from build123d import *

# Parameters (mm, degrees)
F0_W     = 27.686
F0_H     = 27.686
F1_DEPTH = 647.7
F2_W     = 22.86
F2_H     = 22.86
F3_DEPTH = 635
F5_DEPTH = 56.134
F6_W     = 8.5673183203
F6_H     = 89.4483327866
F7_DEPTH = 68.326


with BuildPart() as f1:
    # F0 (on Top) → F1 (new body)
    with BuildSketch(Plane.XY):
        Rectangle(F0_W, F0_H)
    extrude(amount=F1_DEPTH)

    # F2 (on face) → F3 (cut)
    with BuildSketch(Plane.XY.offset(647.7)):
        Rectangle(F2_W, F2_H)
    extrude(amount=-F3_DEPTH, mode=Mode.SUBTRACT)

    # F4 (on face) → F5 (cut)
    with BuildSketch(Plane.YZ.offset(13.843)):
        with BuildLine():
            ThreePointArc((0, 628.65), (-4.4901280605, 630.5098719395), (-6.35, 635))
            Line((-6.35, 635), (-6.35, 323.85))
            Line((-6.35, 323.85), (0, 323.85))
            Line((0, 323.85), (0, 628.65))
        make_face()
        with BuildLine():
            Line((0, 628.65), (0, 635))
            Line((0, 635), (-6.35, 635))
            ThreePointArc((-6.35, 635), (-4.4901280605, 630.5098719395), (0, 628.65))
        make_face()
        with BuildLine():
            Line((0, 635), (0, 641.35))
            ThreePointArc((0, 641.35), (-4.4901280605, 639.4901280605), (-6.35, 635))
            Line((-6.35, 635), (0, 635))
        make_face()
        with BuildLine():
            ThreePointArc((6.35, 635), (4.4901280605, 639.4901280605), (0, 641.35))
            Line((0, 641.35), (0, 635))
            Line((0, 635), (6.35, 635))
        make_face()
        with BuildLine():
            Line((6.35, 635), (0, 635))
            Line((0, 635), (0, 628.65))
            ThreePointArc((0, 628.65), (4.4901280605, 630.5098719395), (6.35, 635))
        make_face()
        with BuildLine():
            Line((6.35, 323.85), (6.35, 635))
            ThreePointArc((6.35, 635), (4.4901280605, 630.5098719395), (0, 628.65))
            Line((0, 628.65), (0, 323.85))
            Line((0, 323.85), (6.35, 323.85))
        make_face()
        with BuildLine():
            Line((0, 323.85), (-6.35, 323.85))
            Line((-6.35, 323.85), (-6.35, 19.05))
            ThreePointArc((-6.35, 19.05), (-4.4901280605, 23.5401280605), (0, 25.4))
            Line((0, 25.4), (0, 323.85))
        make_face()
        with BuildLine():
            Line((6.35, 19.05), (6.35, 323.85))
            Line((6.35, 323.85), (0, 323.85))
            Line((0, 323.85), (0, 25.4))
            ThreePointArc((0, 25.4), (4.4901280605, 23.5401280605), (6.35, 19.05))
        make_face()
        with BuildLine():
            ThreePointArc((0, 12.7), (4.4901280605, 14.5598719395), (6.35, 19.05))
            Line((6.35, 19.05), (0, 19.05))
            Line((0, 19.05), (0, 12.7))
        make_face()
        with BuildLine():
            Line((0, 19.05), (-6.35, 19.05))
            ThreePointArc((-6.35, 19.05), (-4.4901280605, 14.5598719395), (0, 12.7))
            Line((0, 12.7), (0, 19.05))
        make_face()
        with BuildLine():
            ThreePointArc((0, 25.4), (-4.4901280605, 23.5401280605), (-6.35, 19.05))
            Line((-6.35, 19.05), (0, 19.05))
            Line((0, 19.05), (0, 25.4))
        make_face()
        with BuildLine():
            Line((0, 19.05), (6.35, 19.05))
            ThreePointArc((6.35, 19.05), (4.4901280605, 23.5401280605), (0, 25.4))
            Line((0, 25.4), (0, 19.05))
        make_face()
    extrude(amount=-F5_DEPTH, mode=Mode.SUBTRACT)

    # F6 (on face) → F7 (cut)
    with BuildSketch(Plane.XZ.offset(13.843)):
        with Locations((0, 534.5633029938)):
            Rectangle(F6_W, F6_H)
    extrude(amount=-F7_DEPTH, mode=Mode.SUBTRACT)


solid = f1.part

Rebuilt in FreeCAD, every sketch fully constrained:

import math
import FreeCAD as App
import Part
import Sketcher
Q = App.Units.Quantity

doc = App.newDocument("Part")
body = doc.addObject("PartDesign::Body", "Body")

# Sketch on XY plane
sketch1 = body.newObject("Sketcher::SketchObject", "Sketch")
sketch1.AttachmentSupport = (doc.getObject("XY_Plane"), [""])
sketch1.MapMode = "FlatFace"
sketch1.addGeometry([
    Part.LineSegment(App.Vector(-13.843, 13.843, 0), App.Vector(-13.843, -13.843, 0)),
    Part.LineSegment(App.Vector(-13.843, -13.843, 0), App.Vector(13.843, -13.843, 0)),
    Part.LineSegment(App.Vector(13.843, -13.843, 0), App.Vector(13.843, 13.843, 0)),
    Part.LineSegment(App.Vector(13.843, 13.843, 0), App.Vector(-13.843, 13.843, 0)),
], False)
sketch1.addConstraint([
    Sketcher.Constraint("Coincident", 0, 2, 1, 1),
    Sketcher.Constraint("Coincident", 1, 2, 2, 1),
    Sketcher.Constraint("Coincident", 2, 2, 3, 1),
    Sketcher.Constraint("Coincident", 3, 2, 0, 1),
    Sketcher.Constraint("Vertical", 0),
    Sketcher.Constraint("Horizontal", 1),
    Sketcher.Constraint("Vertical", 2),
    Sketcher.Constraint("Horizontal", 3),
    Sketcher.Constraint("Symmetric", 0, 2, 2, 2, -1, 1),
    Sketcher.Constraint("Equal", 3, 0),
    Sketcher.Constraint("DistanceX", 1, 1, 1, 2, Q("1.09 in")),
])
pad1 = body.newObject("PartDesign::Pad", "Pad")
pad1.Profile = sketch1
pad1.Length = Q("25.5 in")

# Sketch on XY plane
sketch2 = body.newObject("Sketcher::SketchObject", "Sketch001")
sketch2.AttachmentSupport = (doc.getObject("XY_Plane"), [""])
sketch2.MapMode = "FlatFace"
sketch2.AttachmentOffset = App.Placement(App.Vector(0, 0, 25.5 * 25.4), App.Rotation())
sketch2.addGeometry([
    Part.LineSegment(App.Vector(-11.43, 11.43, 0), App.Vector(-11.43, -11.43, 0)),
    Part.LineSegment(App.Vector(-11.43, -11.43, 0), App.Vector(11.43, -11.43, 0)),
    Part.LineSegment(App.Vector(11.43, -11.43, 0), App.Vector(11.43, 11.43, 0)),
    Part.LineSegment(App.Vector(11.43, 11.43, 0), App.Vector(-11.43, 11.43, 0)),
], False)
sketch2.addConstraint([
    Sketcher.Constraint("Coincident", 0, 2, 1, 1),
    Sketcher.Constraint("Coincident", 1, 2, 2, 1),
    Sketcher.Constraint("Coincident", 2, 2, 3, 1),
    Sketcher.Constraint("Coincident", 3, 2, 0, 1),
    Sketcher.Constraint("Vertical", 0),
    Sketcher.Constraint("Horizontal", 1),
    Sketcher.Constraint("Vertical", 2),
    Sketcher.Constraint("Horizontal", 3),
    Sketcher.Constraint("Symmetric", 0, 2, 2, 2, -1, 1),
    Sketcher.Constraint("Equal", 3, 0),
    Sketcher.Constraint("DistanceX", 1, 1, 1, 2, Q("0.9 in")),
])
pocket1 = body.newObject("PartDesign::Pocket", "Pocket")
pocket1.Profile = sketch2
pocket1.Length = Q("25 in")

# Sketch on YZ plane
sketch3 = body.newObject("Sketcher::SketchObject", "Sketch002")
sketch3.AttachmentSupport = (doc.getObject("YZ_Plane"), [""])
sketch3.MapMode = "FlatFace"
sketch3.AttachmentOffset = App.Placement(App.Vector(0, 0, 0.545 * 25.4), App.Rotation())
sketch3.addGeometry([
    Part.ArcOfCircle(Part.Circle(App.Vector(0, 19.05, 0), App.Vector(0, 0, 1), 6.35), math.radians(-90), math.radians(0)),  # 0
    Part.LineSegment(App.Vector(6.35, 19.05, 0), App.Vector(6.35, 635, 0)),  # 1
    Part.ArcOfCircle(Part.Circle(App.Vector(0, 635, 0), App.Vector(0, 0, 1), 6.35), math.radians(0), math.radians(90)),  # 2
    Part.ArcOfCircle(Part.Circle(App.Vector(0, 635, 0), App.Vector(0, 0, 1), 6.35), math.radians(90), math.radians(180)),  # 3
    Part.LineSegment(App.Vector(-6.35, 635, 0), App.Vector(-6.35, 19.05, 0)),  # 4
    Part.ArcOfCircle(Part.Circle(App.Vector(0, 19.05, 0), App.Vector(0, 0, 1), 6.35), math.radians(180), math.radians(270)),  # 5
], False)
sketch3.addConstraint([
    Sketcher.Constraint("Tangent", 0, 2, 1, 1),
    Sketcher.Constraint("Tangent", 1, 2, 2, 1),
    Sketcher.Constraint("Tangent", 2, 2, 3, 1),
    Sketcher.Constraint("Tangent", 3, 2, 4, 1),
    Sketcher.Constraint("Tangent", 4, 2, 5, 1),
    Sketcher.Constraint("Tangent", 5, 2, 0, 1),
    Sketcher.Constraint("Vertical", 1),
    Sketcher.Constraint("Vertical", 4),
    Sketcher.Constraint("Equal", 0, 2),
    Sketcher.Constraint("Equal", 2, 3),
    Sketcher.Constraint("PointOnObject", 0, 3, -2),
    Sketcher.Constraint("PointOnObject", 2, 2, -2),
    Sketcher.Constraint("PointOnObject", 5, 2, -2),
    Sketcher.Constraint("Radius", 0, Q("0.25 in")),
    Sketcher.Constraint("DistanceY", -1, 1, 2, 3, Q("25 in")),
    Sketcher.Constraint("DistanceY", 1, 1, 1, 2, Q("24.25 in")),
])
pocket2 = body.newObject("PartDesign::Pocket", "Pocket001")
pocket2.Profile = sketch3
pocket2.Length = Q("2.21 in")

# Sketch on XZ plane
sketch4 = body.newObject("Sketcher::SketchObject", "Sketch003")
sketch4.AttachmentSupport = (doc.getObject("XZ_Plane"), [""])
sketch4.MapMode = "FlatFace"
sketch4.AttachmentOffset = App.Placement(App.Vector(0, 0, 0.545 * 25.4), App.Rotation())
sketch4.addGeometry([
    Part.LineSegment(App.Vector(-4.283659, 579.287469, 0), App.Vector(-4.283659, 489.839137, 0)),
    Part.LineSegment(App.Vector(-4.283659, 489.839137, 0), App.Vector(4.283659, 489.839137, 0)),
    Part.LineSegment(App.Vector(4.283659, 489.839137, 0), App.Vector(4.283659, 579.287469, 0)),
    Part.LineSegment(App.Vector(4.283659, 579.287469, 0), App.Vector(-4.283659, 579.287469, 0)),
], False)
sketch4.addConstraint([
    Sketcher.Constraint("Coincident", 0, 2, 1, 1),
    Sketcher.Constraint("Coincident", 1, 2, 2, 1),
    Sketcher.Constraint("Coincident", 2, 2, 3, 1),
    Sketcher.Constraint("Coincident", 3, 2, 0, 1),
    Sketcher.Constraint("Vertical", 0),
    Sketcher.Constraint("Horizontal", 1),
    Sketcher.Constraint("Vertical", 2),
    Sketcher.Constraint("Horizontal", 3),
    Sketcher.Constraint("DistanceX", 1, 1, 1, 2, 8.567318),
    Sketcher.Constraint("DistanceY", 0, 2, 0, 1, 89.448333),
    Sketcher.Constraint("DistanceX", 0, 2, -1, 1, 4.283659),
    Sketcher.Constraint("DistanceY", -1, 1, 2, 2, 579.287469),
])
pocket3 = body.newObject("PartDesign::Pocket", "Pocket002")
pocket3.Profile = sketch4
pocket3.Length = Q("2.69 in")

doc.recompute()
